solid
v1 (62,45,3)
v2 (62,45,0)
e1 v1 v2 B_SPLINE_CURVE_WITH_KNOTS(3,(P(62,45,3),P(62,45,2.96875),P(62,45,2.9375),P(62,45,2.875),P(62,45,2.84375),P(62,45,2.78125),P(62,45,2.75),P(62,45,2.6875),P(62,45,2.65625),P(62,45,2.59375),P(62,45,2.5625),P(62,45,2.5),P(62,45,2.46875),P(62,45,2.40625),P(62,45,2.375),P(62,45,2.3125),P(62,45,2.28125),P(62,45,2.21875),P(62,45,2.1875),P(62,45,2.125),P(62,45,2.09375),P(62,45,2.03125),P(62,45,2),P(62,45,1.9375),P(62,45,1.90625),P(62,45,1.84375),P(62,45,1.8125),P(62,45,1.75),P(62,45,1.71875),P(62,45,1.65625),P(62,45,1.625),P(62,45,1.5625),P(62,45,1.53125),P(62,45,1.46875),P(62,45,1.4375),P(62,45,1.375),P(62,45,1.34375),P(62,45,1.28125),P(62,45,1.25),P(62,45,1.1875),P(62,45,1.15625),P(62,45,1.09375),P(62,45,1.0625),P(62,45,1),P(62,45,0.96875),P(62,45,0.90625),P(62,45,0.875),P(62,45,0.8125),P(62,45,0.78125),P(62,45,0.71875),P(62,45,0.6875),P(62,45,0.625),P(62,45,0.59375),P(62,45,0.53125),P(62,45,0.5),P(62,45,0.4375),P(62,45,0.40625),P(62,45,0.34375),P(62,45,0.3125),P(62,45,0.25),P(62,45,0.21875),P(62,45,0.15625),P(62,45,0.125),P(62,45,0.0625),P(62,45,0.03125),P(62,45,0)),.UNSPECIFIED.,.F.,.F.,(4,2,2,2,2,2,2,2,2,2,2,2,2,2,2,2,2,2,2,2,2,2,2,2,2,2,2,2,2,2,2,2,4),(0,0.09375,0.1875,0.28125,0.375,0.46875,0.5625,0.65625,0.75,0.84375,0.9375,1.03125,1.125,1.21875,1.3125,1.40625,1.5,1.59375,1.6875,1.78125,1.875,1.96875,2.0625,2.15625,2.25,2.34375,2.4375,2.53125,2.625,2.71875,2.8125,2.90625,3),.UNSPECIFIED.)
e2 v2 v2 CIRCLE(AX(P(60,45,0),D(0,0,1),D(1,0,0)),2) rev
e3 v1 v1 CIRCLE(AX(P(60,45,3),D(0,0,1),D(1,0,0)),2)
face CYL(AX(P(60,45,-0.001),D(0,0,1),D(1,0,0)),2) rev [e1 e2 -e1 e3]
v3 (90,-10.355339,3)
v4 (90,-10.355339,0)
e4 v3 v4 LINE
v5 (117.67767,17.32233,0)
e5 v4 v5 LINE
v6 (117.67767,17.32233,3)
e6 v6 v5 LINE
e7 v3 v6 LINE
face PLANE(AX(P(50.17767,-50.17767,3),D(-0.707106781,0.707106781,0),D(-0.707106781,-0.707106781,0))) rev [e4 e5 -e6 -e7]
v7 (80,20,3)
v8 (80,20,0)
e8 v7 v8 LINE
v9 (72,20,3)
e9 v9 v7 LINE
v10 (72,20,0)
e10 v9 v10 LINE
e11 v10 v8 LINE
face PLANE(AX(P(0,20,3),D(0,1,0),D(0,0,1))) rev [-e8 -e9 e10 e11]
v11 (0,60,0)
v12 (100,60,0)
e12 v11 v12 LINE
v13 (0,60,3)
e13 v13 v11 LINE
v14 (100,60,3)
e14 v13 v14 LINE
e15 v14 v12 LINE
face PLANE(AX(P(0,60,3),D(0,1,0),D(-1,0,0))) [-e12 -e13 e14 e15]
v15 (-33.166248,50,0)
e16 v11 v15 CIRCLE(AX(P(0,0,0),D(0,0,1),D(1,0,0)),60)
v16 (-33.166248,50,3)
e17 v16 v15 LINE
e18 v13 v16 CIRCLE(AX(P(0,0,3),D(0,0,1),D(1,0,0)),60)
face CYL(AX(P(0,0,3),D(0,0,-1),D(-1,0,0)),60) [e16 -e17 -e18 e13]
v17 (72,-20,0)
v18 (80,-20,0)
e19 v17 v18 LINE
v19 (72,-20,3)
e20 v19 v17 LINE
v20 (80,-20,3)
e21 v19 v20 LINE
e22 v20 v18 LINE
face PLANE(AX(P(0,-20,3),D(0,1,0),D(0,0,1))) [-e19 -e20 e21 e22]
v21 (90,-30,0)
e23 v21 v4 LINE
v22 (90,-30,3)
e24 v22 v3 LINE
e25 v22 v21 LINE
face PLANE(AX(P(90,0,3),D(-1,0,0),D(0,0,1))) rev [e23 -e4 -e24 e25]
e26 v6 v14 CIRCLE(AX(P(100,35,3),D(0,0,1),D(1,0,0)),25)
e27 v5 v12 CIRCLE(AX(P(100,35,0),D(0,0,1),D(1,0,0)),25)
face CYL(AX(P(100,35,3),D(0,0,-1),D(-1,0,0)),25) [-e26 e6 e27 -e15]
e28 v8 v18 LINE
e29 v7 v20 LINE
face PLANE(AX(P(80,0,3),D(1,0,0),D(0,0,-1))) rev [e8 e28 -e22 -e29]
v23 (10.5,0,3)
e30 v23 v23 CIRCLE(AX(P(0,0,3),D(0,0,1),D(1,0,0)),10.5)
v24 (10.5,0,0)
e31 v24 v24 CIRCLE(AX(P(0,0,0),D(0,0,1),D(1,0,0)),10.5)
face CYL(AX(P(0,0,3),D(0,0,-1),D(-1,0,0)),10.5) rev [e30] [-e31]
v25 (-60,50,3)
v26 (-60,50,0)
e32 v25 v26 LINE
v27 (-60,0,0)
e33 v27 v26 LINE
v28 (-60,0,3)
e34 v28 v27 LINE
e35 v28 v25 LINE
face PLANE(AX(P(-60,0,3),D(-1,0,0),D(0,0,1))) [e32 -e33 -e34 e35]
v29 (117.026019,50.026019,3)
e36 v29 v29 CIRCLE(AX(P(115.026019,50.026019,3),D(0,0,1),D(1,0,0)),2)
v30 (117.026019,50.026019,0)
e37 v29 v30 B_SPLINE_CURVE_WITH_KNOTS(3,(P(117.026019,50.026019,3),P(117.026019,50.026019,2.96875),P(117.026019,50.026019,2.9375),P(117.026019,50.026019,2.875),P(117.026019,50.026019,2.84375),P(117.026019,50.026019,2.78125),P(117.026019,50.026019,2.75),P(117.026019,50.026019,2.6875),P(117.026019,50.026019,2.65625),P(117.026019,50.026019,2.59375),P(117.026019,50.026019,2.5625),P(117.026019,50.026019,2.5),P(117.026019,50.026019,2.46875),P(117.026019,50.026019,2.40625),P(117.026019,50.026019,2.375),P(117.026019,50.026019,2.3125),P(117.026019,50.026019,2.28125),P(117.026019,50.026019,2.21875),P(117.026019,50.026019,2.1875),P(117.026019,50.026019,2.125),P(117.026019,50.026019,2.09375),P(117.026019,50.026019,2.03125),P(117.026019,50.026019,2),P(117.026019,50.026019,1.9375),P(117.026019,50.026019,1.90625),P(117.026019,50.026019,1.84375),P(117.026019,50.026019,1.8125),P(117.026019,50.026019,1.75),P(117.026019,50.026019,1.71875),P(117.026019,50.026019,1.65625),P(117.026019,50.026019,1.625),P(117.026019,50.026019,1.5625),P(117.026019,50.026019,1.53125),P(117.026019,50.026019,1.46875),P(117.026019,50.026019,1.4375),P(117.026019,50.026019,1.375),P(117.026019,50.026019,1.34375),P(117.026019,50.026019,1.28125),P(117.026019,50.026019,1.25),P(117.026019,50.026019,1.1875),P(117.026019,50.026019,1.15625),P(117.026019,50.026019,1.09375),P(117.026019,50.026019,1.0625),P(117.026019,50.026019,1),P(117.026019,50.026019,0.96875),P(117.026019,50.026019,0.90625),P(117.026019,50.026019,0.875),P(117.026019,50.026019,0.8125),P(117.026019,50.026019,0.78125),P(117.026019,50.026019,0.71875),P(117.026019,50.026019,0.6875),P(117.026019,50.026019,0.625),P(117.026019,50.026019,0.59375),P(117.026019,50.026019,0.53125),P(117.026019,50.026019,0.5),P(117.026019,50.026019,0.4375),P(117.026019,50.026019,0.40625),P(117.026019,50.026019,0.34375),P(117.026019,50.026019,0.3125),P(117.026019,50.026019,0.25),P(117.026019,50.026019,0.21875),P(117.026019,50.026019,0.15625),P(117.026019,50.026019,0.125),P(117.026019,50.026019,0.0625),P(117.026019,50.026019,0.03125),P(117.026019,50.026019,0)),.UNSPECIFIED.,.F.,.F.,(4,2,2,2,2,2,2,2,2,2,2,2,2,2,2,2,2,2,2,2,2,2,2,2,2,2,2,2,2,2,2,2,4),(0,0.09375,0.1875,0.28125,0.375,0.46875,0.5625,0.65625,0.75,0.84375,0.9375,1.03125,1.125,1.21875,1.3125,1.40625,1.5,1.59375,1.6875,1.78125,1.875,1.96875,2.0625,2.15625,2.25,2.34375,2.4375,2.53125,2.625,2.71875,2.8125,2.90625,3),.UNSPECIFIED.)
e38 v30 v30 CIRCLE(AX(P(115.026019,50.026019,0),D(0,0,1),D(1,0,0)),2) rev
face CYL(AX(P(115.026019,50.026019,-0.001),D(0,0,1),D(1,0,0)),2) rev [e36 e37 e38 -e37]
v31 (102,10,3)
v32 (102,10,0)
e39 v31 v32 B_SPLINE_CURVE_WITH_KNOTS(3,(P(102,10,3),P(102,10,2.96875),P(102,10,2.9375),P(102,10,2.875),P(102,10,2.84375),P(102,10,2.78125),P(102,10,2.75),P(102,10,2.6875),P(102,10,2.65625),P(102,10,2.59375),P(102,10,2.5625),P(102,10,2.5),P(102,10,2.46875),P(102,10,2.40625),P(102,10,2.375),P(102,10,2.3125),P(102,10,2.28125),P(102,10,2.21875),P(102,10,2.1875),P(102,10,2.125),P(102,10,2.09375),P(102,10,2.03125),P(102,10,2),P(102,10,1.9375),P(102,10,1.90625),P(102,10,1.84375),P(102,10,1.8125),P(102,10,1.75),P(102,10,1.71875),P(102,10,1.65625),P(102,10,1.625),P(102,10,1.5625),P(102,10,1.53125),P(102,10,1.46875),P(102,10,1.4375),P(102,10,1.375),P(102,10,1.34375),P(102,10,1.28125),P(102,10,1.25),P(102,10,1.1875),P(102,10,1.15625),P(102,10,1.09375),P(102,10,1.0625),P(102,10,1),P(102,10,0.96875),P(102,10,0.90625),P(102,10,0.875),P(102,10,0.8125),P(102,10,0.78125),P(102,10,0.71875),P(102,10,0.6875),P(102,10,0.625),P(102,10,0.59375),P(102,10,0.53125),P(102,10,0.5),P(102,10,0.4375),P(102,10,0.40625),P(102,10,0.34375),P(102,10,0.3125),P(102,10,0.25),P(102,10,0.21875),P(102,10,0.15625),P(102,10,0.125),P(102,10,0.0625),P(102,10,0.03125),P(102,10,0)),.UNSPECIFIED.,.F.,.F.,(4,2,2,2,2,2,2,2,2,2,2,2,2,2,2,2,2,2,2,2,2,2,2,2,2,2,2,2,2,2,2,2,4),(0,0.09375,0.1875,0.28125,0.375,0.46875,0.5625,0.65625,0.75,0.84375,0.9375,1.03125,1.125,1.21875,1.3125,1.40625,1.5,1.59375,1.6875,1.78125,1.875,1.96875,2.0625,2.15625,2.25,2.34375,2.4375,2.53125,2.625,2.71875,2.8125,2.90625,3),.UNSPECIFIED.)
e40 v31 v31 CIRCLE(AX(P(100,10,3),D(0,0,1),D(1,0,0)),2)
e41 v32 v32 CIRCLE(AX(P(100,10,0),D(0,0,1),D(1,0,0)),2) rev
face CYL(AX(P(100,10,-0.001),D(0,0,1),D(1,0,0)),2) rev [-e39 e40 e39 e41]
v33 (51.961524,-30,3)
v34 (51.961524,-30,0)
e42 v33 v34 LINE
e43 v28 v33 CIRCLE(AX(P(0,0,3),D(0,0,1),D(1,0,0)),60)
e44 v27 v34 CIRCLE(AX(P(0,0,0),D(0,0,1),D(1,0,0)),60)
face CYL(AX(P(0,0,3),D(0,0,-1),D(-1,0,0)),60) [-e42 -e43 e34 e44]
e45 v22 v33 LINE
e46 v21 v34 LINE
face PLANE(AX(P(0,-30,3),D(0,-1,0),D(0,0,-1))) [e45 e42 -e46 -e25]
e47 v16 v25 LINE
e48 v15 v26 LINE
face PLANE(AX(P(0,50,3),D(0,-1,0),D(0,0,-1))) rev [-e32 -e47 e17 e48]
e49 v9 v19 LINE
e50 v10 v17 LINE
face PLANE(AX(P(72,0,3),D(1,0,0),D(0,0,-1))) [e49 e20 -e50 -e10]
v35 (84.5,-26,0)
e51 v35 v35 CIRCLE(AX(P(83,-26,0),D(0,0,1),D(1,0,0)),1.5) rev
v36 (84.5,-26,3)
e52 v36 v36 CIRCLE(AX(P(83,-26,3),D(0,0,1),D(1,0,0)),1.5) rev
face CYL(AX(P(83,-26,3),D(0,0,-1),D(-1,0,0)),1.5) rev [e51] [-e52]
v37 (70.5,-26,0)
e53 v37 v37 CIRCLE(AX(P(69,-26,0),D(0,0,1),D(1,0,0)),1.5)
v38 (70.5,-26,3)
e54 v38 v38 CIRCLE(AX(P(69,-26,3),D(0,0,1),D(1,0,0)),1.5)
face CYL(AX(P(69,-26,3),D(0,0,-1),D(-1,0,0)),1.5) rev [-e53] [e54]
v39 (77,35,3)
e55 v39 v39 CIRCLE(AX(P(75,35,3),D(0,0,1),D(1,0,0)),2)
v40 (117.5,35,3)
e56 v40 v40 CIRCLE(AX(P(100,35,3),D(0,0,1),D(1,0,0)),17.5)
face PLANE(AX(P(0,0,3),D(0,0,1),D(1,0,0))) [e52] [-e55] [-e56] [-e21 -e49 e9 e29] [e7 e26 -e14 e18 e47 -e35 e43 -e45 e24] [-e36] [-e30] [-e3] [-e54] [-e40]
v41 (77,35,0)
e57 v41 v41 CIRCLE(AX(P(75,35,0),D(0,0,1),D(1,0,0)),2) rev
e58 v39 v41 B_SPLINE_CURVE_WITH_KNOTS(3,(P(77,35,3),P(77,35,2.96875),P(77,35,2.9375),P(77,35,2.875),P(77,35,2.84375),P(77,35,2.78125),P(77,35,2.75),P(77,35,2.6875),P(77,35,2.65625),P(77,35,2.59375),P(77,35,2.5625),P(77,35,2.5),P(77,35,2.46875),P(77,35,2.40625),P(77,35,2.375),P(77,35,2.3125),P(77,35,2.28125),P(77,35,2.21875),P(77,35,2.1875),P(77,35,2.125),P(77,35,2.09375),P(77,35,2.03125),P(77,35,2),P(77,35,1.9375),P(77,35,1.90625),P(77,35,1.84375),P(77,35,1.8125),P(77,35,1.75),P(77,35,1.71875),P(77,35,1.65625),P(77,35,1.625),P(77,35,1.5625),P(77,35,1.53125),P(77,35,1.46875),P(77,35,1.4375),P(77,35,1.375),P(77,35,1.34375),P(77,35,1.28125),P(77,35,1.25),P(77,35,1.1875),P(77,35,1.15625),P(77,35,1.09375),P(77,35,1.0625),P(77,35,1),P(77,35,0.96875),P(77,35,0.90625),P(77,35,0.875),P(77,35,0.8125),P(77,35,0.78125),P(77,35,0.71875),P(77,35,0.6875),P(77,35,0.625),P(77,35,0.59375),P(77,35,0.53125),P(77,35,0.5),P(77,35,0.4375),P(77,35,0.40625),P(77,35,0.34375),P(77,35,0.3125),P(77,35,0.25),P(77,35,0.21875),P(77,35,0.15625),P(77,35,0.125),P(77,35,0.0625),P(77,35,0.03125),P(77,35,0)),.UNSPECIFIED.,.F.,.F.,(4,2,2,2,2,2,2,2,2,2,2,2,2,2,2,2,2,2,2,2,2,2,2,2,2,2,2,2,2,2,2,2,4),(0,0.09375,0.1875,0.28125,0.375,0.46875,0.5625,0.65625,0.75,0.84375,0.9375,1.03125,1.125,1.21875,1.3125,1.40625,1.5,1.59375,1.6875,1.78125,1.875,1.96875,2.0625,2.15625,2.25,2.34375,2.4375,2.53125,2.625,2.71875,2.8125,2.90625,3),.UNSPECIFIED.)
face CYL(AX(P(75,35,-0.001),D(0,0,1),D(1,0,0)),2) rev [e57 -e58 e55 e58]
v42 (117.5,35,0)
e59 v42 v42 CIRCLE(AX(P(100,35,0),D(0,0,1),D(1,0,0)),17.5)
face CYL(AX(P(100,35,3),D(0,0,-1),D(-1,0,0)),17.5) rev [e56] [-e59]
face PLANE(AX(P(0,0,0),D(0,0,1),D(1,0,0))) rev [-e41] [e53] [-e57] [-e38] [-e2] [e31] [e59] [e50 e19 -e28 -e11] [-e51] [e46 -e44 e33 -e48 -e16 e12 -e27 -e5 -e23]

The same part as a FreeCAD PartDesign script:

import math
import FreeCAD as App
import Part
import Sketcher
Q = App.Units.Quantity


def add_polygon(sketch, points):
    """Adds a closed chain of lines whose ends are joined by coincident constraints."""
    first, n = sketch.GeometryCount, len(points)
    for a, b in zip(points, points[1:] + points[:1]):
        sketch.addGeometry(Part.LineSegment(App.Vector(*a, 0), App.Vector(*b, 0)), False)
    for i in range(n):
        sketch.addConstraint(Sketcher.Constraint("Coincident", first + i, 2, first + (i + 1) % n, 1))

doc = App.newDocument("Part")
params = doc.addObject("Spreadsheet::Sheet", "Params")
for row, (alias, value) in enumerate([
    ("sketch1_diameter", "35 mm"),
    ("sketch1_diameter2", "21 mm"),
    ("sketch1_diameter3", "3 mm"),
    ("sketch1_radius", "60 mm"),
    ("sketch1_radius2", "25 mm"),
    ("pad1_length", "3 mm"),
    ("sketch2_diameter", "4 mm"),
    ("sketch3_diameter", "4 mm"),
    ("sketch4_diameter", "4 mm"),
    ("sketch5_diameter", "4 mm"),
], start=1):
    params.set(f"A{row}", alias)
    params.set(f"B{row}", "=" + value)
    params.setAlias(f"B{row}", alias)

body = doc.addObject("PartDesign::Body", "Body")

# Sketch on XY plane
sketch1 = body.newObject("Sketcher::SketchObject", "Sketch")
sketch1.AttachmentSupport = (doc.getObject("XY_Plane"), [""])
sketch1.MapMode = "FlatFace"
sketch1.addGeometry(Part.LineSegment(App.Vector(-33.2, 50, 0), App.Vector(-60, 50, 0)), False)  # 0
sketch1.addGeometry(Part.LineSegment(App.Vector(-60, 50, 0), App.Vector(-60, 0, 0)), False)  # 1
sketch1.addGeometry(Part.ArcOfCircle(Part.Circle(App.Vector(0, 0, 0), App.Vector(0, 0, 1), 60), math.radians(180), math.radians(330)), False)  # 2
sketch1.addGeometry(Part.LineSegment(App.Vector(52, -30, 0), App.Vector(90, -30, 0)), False)  # 3
sketch1.addGeometry(Part.LineSegment(App.Vector(90, -30, 0), App.Vector(90, -10.4, 0)), False)  # 4
sketch1.addGeometry(Part.LineSegment(App.Vector(90, -10.4, 0), App.Vector(117.7, 17.3, 0)), False)  # 5
sketch1.addGeometry(Part.ArcOfCircle(Part.Circle(App.Vector(100, 35, 0), App.Vector(0, 0, 1), 25), math.radians(-45), math.radians(90)), False)  # 6
sketch1.addGeometry(Part.LineSegment(App.Vector(100, 60, 0), App.Vector(0, 60, 0)), False)  # 7
sketch1.addGeometry(Part.ArcOfCircle(Part.Circle(App.Vector(0, 0, 0), App.Vector(0, 0, 1), 60), math.radians(90), math.radians(124)), False)  # 8
sketch1.addGeometry(Part.Circle(App.Vector(100, 35, 0), App.Vector(0, 0, 1), 17.5), False)  # 9
sketch1.addGeometry(Part.Circle(App.Vector(0, 0, 0), App.Vector(0, 0, 1), 10.5), False)  # 10
sketch1.addGeometry(Part.Circle(App.Vector(69, -26, 0), App.Vector(0, 0, 1), 1.5), False)  # 11
sketch1.addGeometry(Part.Circle(App.Vector(83, -26, 0), App.Vector(0, 0, 1), 1.5), False)  # 12
add_polygon(sketch1, [(80, -20), (72, -20), (72, 20), (80, 20)])  # lines 13-16
sketch1.addConstraint([
    Sketcher.Constraint("Coincident", 0, 2, 1, 1),
    Sketcher.Constraint("Tangent", 1, 2, 2, 1),
    Sketcher.Constraint("Coincident", 2, 2, 3, 1),
    Sketcher.Constraint("Coincident", 3, 2, 4, 1),
    Sketcher.Constraint("Coincident", 4, 2, 5, 1),
    Sketcher.Constraint("Tangent", 5, 2, 6, 1),
    Sketcher.Constraint("Tangent", 6, 2, 7, 1),
    Sketcher.Constraint("Tangent", 7, 2, 8, 1),
    Sketcher.Constraint("Coincident", 8, 2, 0, 1),
    Sketcher.Constraint("Horizontal", 0),
    Sketcher.Constraint("Vertical", 1),
    Sketcher.Constraint("Horizontal", 3),
    Sketcher.Constraint("Vertical", 4),
    Sketcher.Constraint("Horizontal", 7),
    Sketcher.Constraint("Horizontal", 13),
    Sketcher.Constraint("Vertical", 14),
    Sketcher.Constraint("Horizontal", 15),
    Sketcher.Constraint("Vertical", 16),
    Sketcher.Constraint("Coincident", 2, 3, -1, 1),
    Sketcher.Constraint("Coincident", 8, 3, -1, 1),
    Sketcher.Constraint("Coincident", 10, 3, -1, 1),
    Sketcher.Constraint("Coincident", 9, 3, 6, 3),
    Sketcher.Constraint("Equal", 2, 8),
    Sketcher.Constraint("Equal", 11, 12),
    Sketcher.Constraint("Horizontal", 11, 3, 12, 3),
    Sketcher.Constraint("Diameter", 9, Q("35 mm")),
    Sketcher.Constraint("Diameter", 10, Q("21 mm")),
    Sketcher.Constraint("Diameter", 11, Q("3 mm")),
    Sketcher.Constraint("Radius", 2, Q("60 mm")),
    Sketcher.Constraint("Radius", 6, Q("25 mm")),
    Sketcher.Constraint("DistanceX", 7, 2, 7, 1, Q("100 mm")),
    Sketcher.Constraint("DistanceX", 13, 2, 13, 1, Q("8 mm")),
    Sketcher.Constraint("DistanceY", 1, 2, 1, 1, Q("50 mm")),
    Sketcher.Constraint("DistanceY", 14, 1, 14, 2, Q("40 mm")),
    Sketcher.Constraint("Angle", 5, Q("45 deg")),
    Sketcher.Constraint("DistanceX", -1, 1, 11, 3, Q("69 mm")),
    Sketcher.Constraint("DistanceY", 11, 3, -1, 1, Q("26 mm")),
    Sketcher.Constraint("DistanceX", -1, 1, 12, 3, Q("83 mm")),
    Sketcher.Constraint("DistanceY", 2, 2, -1, 1, Q("30 mm")),
    Sketcher.Constraint("DistanceX", -1, 1, 3, 2, Q("90 mm")),
    Sketcher.Constraint("DistanceX", -1, 1, 13, 2, Q("72 mm")),
    Sketcher.Constraint("DistanceY", 13, 2, -1, 1, Q("20 mm")),
])
sketch1.setExpression("Constraints[29]", "Params.sketch1_diameter")
sketch1.setExpression("Constraints[30]", "Params.sketch1_diameter2")
sketch1.setExpression("Constraints[31]", "Params.sketch1_diameter3")
sketch1.setExpression("Constraints[32]", "Params.sketch1_radius")
sketch1.setExpression("Constraints[33]", "Params.sketch1_radius2")
pad1 = body.newObject("PartDesign::Pad", "Pad")
pad1.Profile = sketch1
pad1.setExpression("Length", "Params.pad1_length")

# Sketch on XY plane
sketch2 = body.newObject("Sketcher::SketchObject", "Sketch001")
sketch2.AttachmentSupport = (doc.getObject("XY_Plane"), [""])
sketch2.MapMode = "FlatFace"
sketch2.AttachmentOffset = App.Placement(App.Vector(0, 0, 3), App.Rotation())
sketch2.addGeometry(Part.Circle(App.Vector(60, 45, 0), App.Vector(0, 0, 1), 2), False)
sketch2.addConstraint([
    Sketcher.Constraint("Diameter", 0, Q("4 mm")),
    Sketcher.Constraint("DistanceX", -1, 1, 0, 3, Q("60 mm")),
    Sketcher.Constraint("DistanceY", -1, 1, 0, 3, Q("45 mm")),
])
sketch2.setExpression("Constraints[0]", "Params.sketch2_diameter")
pocket1 = body.newObject("PartDesign::Pocket", "Pocket")
pocket1.Profile = sketch2
pocket1.Type = "UpToFirst"

# Sketch on XY plane
sketch3 = body.newObject("Sketcher::SketchObject", "Sketch002")
sketch3.AttachmentSupport = (doc.getObject("XY_Plane"), [""])
sketch3.MapMode = "FlatFace"
sketch3.AttachmentOffset = App.Placement(App.Vector(0, 0, 3), App.Rotation())
sketch3.addGeometry(Part.Circle(App.Vector(100, 10, 0), App.Vector(0, 0, 1), 2), False)
sketch3.addConstraint([
    Sketcher.Constraint("Diameter", 0, Q("4 mm")),
    Sketcher.Constraint("DistanceX", -1, 1, 0, 3, Q("100 mm")),
    Sketcher.Constraint("DistanceY", -1, 1, 0, 3, Q("10 mm")),
])
sketch3.setExpression("Constraints[0]", "Params.sketch3_diameter")
pocket2 = body.newObject("PartDesign::Pocket", "Pocket001")
pocket2.Profile = sketch3
pocket2.Type = "UpToFirst"

# Sketch on XY plane
sketch4 = body.newObject("Sketcher::SketchObject", "Sketch003")
sketch4.AttachmentSupport = (doc.getObject("XY_Plane"), [""])
sketch4.MapMode = "FlatFace"
sketch4.AttachmentOffset = App.Placement(App.Vector(0, 0, 3), App.Rotation())
sketch4.addGeometry(Part.Circle(App.Vector(75, 35, 0), App.Vector(0, 0, 1), 2), False)
sketch4.addConstraint([
    Sketcher.Constraint("Diameter", 0, Q("4 mm")),
    Sketcher.Constraint("DistanceX", -1, 1, 0, 3, Q("75 mm")),
    Sketcher.Constraint("DistanceY", -1, 1, 0, 3, Q("35 mm")),
])
sketch4.setExpression("Constraints[0]", "Params.sketch4_diameter")
pocket3 = body.newObject("PartDesign::Pocket", "Pocket002")
pocket3.Profile = sketch4
pocket3.Type = "UpToFirst"

# Sketch on XY plane
sketch5 = body.newObject("Sketcher::SketchObject", "Sketch004")
sketch5.AttachmentSupport = (doc.getObject("XY_Plane"), [""])
sketch5.MapMode = "FlatFace"
sketch5.AttachmentOffset = App.Placement(App.Vector(0, 0, 3), App.Rotation())
sketch5.addGeometry(Part.Circle(App.Vector(115, 50, 0), App.Vector(0, 0, 1), 2), False)
sketch5.addConstraint([
    Sketcher.Constraint("Diameter", 0, Q("4 mm")),
    Sketcher.Constraint("DistanceX", -1, 1, 0, 3, Q("115.026019 mm")),
    Sketcher.Constraint("DistanceY", -1, 1, 0, 3, Q("50.026019 mm")),
])
sketch5.setExpression("Constraints[0]", "Params.sketch5_diameter")
pocket4 = body.newObject("PartDesign::Pocket", "Pocket003")
pocket4.Profile = sketch5
pocket4.Type = "UpToFirst"

doc.recompute()
